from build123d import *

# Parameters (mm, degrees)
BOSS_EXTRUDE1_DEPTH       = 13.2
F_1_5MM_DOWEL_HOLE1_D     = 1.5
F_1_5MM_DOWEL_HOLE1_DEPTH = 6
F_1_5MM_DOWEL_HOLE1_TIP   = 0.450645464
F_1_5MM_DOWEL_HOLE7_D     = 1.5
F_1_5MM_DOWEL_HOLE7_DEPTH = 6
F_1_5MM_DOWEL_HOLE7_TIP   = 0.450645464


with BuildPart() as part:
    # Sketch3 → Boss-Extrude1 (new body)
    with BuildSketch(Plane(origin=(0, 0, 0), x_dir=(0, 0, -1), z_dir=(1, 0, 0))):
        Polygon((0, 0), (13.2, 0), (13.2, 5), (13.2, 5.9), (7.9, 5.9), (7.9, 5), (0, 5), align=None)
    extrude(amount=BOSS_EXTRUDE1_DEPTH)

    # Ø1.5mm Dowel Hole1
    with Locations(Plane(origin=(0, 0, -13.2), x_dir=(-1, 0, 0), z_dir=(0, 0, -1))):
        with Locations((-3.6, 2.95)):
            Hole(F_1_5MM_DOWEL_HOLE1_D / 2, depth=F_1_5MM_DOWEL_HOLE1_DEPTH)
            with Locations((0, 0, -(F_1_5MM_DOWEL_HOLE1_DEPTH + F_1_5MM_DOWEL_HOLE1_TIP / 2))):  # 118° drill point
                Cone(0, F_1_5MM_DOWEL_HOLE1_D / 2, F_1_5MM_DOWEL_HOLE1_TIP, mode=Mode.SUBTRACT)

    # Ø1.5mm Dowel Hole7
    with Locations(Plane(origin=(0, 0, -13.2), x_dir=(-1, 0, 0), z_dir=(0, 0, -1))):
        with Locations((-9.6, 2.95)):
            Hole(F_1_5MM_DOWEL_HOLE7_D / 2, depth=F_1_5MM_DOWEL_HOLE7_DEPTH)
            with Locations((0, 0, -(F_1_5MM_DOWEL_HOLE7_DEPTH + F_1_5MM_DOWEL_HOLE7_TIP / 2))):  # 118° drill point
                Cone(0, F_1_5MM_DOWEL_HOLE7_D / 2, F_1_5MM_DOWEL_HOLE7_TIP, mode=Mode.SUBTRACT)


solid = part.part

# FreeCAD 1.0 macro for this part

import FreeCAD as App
import Part
import Sketcher
Q = App.Units.Quantity


def add_polygon(sketch, points):
    """Adds a closed chain of lines whose ends are joined by coincident constraints."""
    first, n = sketch.GeometryCount, len(points)
    for a, b in zip(points, points[1:] + points[:1]):
        sketch.addGeometry(Part.LineSegment(App.Vector(*a, 0), App.Vector(*b, 0)), False)
    for i in range(n):
        sketch.addConstraint(Sketcher.Constraint("Coincident", first + i, 2, first + (i + 1) % n, 1))

doc = App.newDocument("Part")
params = doc.addObject("Spreadsheet::Sheet", "Params")
for row, (alias, value) in enumerate([
    ("sketch1_width", "5 mm"),
    ("sketch1_width2", "5.9 mm"),
    ("sketch1_height", "13.2 mm"),
    ("sketch1_height2", "5.3 mm"),
    ("pad1_length", "13.2 mm"),
    ("sketch2_diameter", "1.5 mm"),
    ("hole_diameter", "1.5 mm"),
    ("hole_depth", "6 mm"),
    ("sketch3_diameter", "1.5 mm"),
    ("hole2_diameter", "1.5 mm"),
    ("hole2_depth", "6 mm"),
], start=1):
    params.set(f"A{row}", alias)
    params.set(f"B{row}", "=" + value)
    params.setAlias(f"B{row}", alias)

body = doc.addObject("PartDesign::Body", "Body")

sketch1 = body.newObject("Sketcher::SketchObject", "Sketch")
sketch1.AttachmentSupport = (doc.getObject("YZ_Plane"), [""])
sketch1.MapMode = "FlatFace"
add_polygon(sketch1, [(0, 0), (0, -13.2), (5.9, -13.2), (5.9, -7.9), (5, -7.9), (5, 0)])
sketch1.addConstraint([
    Sketcher.Constraint("Vertical", 0),
    Sketcher.Constraint("Horizontal", 1),
    Sketcher.Constraint("Vertical", 2),
    Sketcher.Constraint("Horizontal", 3),
    Sketcher.Constraint("Vertical", 4),
    Sketcher.Constraint("Horizontal", 5),
    Sketcher.Constraint("Coincident", 5, 2, -1, 1),
    Sketcher.Constraint("DistanceX", 5, 2, 5, 1, Q("5 mm")),
    Sketcher.Constraint("DistanceX", 1, 1, 1, 2, Q("5.9 mm")),
    Sketcher.Constraint("DistanceY", 0, 2, 0, 1, Q("13.2 mm")),
    Sketcher.Constraint("DistanceY", 2, 1, 2, 2, Q("5.3 mm")),
])
sketch1.setExpression("Constraints[13]", "Params.sketch1_width")
sketch1.setExpression("Constraints[14]", "Params.sketch1_width2")
sketch1.setExpression("Constraints[15]", "Params.sketch1_height")
sketch1.setExpression("Constraints[16]", "Params.sketch1_height2")
pad1 = body.newObject("PartDesign::Pad", "Pad")
pad1.Profile = sketch1
pad1.setExpression("Length", "Params.pad1_length")

sketch2 = body.newObject("Sketcher::SketchObject", "Sketch001")
sketch2.AttachmentSupport = (doc.getObject("XY_Plane"), [""])
sketch2.MapMode = "FlatFace"
sketch2.AttachmentOffset = App.Placement(App.Vector(0, 0, -13.2), App.Rotation())
sketch2.addGeometry(Part.Circle(App.Vector(3.6, 3, 0), App.Vector(0, 0, 1), 0.8), False)
sketch2.addConstraint([
    Sketcher.Constraint("Diameter", 0, Q("1.5 mm")),
    Sketcher.Constraint("DistanceX", -1, 1, 0, 3, Q("3.6 mm")),
    Sketcher.Constraint("DistanceY", -1, 1, 0, 3, Q("2.95 mm")),
])
sketch2.setExpression("Constraints[0]", "Params.sketch2_diameter")
doc.recompute()
hole = body.newObject("PartDesign::Hole", "Hole")
hole.Profile = sketch2
hole.ThreadType = "None"
hole.setExpression("Diameter", "Params.hole_diameter")
hole.DepthType = "Dimension"
hole.setExpression("Depth", "Params.hole_depth")
hole.DrillPoint = "Angled"
hole.DrillPointAngle = 118
hole.Reversed = True

sketch3 = body.newObject("Sketcher::SketchObject", "Sketch002")
sketch3.AttachmentSupport = (doc.getObject("XY_Plane"), [""])
sketch3.MapMode = "FlatFace"
sketch3.AttachmentOffset = App.Placement(App.Vector(0, 0, -13.2), App.Rotation())
sketch3.addGeometry(Part.Circle(App.Vector(9.6, 3, 0), App.Vector(0, 0, 1), 0.8), False)
sketch3.addConstraint([
    Sketcher.Constraint("Diameter", 0, Q("1.5 mm")),
    Sketcher.Constraint("DistanceX", -1, 1, 0, 3, Q("9.6 mm")),
    Sketcher.Constraint("DistanceY", -1, 1, 0, 3, Q("2.95 mm")),
])
sketch3.setExpression("Constraints[0]", "Params.sketch3_diameter")
doc.recompute()
hole2 = body.newObject("PartDesign::Hole", "Hole001")
hole2.Profile = sketch3
hole2.ThreadType = "None"
hole2.setExpression("Diameter", "Params.hole2_diameter")
hole2.DepthType = "Dimension"
hole2.setExpression("Depth", "Params.hole2_depth")
hole2.DrillPoint = "Angled"
hole2.DrillPointAngle = 118
hole2.Reversed = True

doc.recompute()
